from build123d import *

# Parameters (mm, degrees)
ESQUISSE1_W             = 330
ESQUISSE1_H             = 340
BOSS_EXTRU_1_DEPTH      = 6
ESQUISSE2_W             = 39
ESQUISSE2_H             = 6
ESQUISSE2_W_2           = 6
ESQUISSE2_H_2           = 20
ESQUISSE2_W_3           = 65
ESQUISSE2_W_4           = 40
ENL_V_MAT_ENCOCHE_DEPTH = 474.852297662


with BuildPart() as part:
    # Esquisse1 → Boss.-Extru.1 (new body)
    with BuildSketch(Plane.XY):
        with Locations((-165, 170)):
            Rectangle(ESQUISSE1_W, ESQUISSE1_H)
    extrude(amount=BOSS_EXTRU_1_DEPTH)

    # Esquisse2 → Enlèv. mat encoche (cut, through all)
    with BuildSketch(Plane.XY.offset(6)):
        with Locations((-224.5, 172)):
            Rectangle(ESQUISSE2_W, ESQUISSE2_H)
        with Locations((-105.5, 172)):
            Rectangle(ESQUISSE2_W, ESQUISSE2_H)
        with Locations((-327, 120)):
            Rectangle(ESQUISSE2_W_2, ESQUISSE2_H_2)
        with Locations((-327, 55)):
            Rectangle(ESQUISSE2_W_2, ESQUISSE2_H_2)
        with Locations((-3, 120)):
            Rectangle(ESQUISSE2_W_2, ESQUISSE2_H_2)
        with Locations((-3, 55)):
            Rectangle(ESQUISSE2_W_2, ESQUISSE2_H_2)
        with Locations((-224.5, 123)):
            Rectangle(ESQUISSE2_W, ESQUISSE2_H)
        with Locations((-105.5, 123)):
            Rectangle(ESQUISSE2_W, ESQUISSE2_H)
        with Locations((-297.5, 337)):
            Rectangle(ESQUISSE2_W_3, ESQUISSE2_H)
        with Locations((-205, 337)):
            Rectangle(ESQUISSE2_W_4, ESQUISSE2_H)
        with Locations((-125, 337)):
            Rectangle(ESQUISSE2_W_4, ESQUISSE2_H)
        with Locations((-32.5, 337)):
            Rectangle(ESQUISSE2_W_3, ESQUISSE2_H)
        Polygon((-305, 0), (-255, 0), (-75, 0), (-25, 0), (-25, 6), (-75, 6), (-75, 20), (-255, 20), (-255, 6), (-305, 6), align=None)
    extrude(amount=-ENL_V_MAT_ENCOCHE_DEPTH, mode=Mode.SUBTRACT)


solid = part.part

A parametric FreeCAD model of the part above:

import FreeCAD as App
import Part
import Sketcher
Q = App.Units.Quantity


def add_polygon(sketch, points):
    """Adds a closed chain of lines whose ends are joined by coincident constraints."""
    first, n = sketch.GeometryCount, len(points)
    for a, b in zip(points, points[1:] + points[:1]):
        sketch.addGeometry(Part.LineSegment(App.Vector(*a, 0), App.Vector(*b, 0)), False)
    for i in range(n):
        sketch.addConstraint(Sketcher.Constraint("Coincident", first + i, 2, first + (i + 1) % n, 1))

doc = App.newDocument("Part")
body = doc.addObject("PartDesign::Body", "Body")

sketch1 = body.newObject("Sketcher::SketchObject", "Sketch")
sketch1.AttachmentSupport = (doc.getObject("XY_Plane"), [""])
sketch1.MapMode = "FlatFace"
add_polygon(sketch1, [(-330, 340), (-330, 0), (0, 0), (0, 340)])
sketch1.addConstraint(Sketcher.Constraint("Vertical", 0))
sketch1.addConstraint(Sketcher.Constraint("Horizontal", 1))
sketch1.addConstraint(Sketcher.Constraint("Vertical", 2))
sketch1.addConstraint(Sketcher.Constraint("Horizontal", 3))
sketch1.addConstraint(Sketcher.Constraint("Coincident", 1, 2, -1, 1))
sketch1.addConstraint(Sketcher.Constraint("DistanceX", 1, 1, 1, 2, Q("330 mm")))
sketch1.addConstraint(Sketcher.Constraint("DistanceY", 0, 2, 0, 1, Q("340 mm")))
pad1 = body.newObject("PartDesign::Pad", "Pad")
pad1.Profile = sketch1
pad1.Length = 6

sketch2 = body.newObject("Sketcher::SketchObject", "Sketch001")
sketch2.AttachmentSupport = (doc.getObject("XY_Plane"), [""])
sketch2.MapMode = "FlatFace"
sketch2.AttachmentOffset = App.Placement(App.Vector(0, 0, 6), App.Rotation())
add_polygon(sketch2, [(-244, 175), (-244, 169), (-205, 169), (-205, 175)])
add_polygon(sketch2, [(-125, 175), (-125, 169), (-86, 169), (-86, 175)])
add_polygon(sketch2, [(-330, 130), (-330, 110), (-324, 110), (-324, 130)])
add_polygon(sketch2, [(-330, 65), (-330, 45), (-324, 45), (-324, 65)])
add_polygon(sketch2, [(-6, 130), (-6, 110), (0, 110), (0, 130)])
add_polygon(sketch2, [(-6, 65), (-6, 45), (0, 45), (0, 65)])
add_polygon(sketch2, [(-244, 126), (-244, 120), (-205, 120), (-205, 126)])
add_polygon(sketch2, [(-125, 126), (-125, 120), (-86, 120), (-86, 126)])
add_polygon(sketch2, [(-330, 340), (-330, 334), (-265, 334), (-265, 340)])
add_polygon(sketch2, [(-225, 340), (-225, 334), (-185, 334), (-185, 340)])
add_polygon(sketch2, [(-145, 340), (-145, 334), (-105, 334), (-105, 340)])
add_polygon(sketch2, [(-65, 340), (-65, 334), (0, 334), (0, 340)])
add_polygon(sketch2, [(-305, 0), (-25, 0), (-25, 6), (-75, 6), (-75, 20), (-255, 20), (-255, 6), (-305, 6)])
sketch2.addConstraint(Sketcher.Constraint("Vertical", 0))
sketch2.addConstraint(Sketcher.Constraint("Horizontal", 1))
sketch2.addConstraint(Sketcher.Constraint("Vertical", 2))
sketch2.addConstraint(Sketcher.Constraint("Horizontal", 3))
sketch2.addConstraint(Sketcher.Constraint("Vertical", 4))
sketch2.addConstraint(Sketcher.Constraint("Horizontal", 5))
sketch2.addConstraint(Sketcher.Constraint("Vertical", 6))
sketch2.addConstraint(Sketcher.Constraint("Horizontal", 7))
sketch2.addConstraint(Sketcher.Constraint("Vertical", 8))
sketch2.addConstraint(Sketcher.Constraint("Horizontal", 9))
sketch2.addConstraint(Sketcher.Constraint("Vertical", 10))
sketch2.addConstraint(Sketcher.Constraint("Horizontal", 11))
sketch2.addConstraint(Sketcher.Constraint("Vertical", 12))
sketch2.addConstraint(Sketcher.Constraint("Horizontal", 13))
sketch2.addConstraint(Sketcher.Constraint("Vertical", 14))
sketch2.addConstraint(Sketcher.Constraint("Horizontal", 15))
sketch2.addConstraint(Sketcher.Constraint("Vertical", 16))
sketch2.addConstraint(Sketcher.Constraint("Horizontal", 17))
sketch2.addConstraint(Sketcher.Constraint("Vertical", 18))
sketch2.addConstraint(Sketcher.Constraint("Horizontal", 19))
sketch2.addConstraint(Sketcher.Constraint("Vertical", 20))
sketch2.addConstraint(Sketcher.Constraint("Horizontal", 21))
sketch2.addConstraint(Sketcher.Constraint("Vertical", 22))
sketch2.addConstraint(Sketcher.Constraint("Horizontal", 23))
sketch2.addConstraint(Sketcher.Constraint("Vertical", 24))
sketch2.addConstraint(Sketcher.Constraint("Horizontal", 25))
sketch2.addConstraint(Sketcher.Constraint("Vertical", 26))
sketch2.addConstraint(Sketcher.Constraint("Horizontal", 27))
sketch2.addConstraint(Sketcher.Constraint("Vertical", 28))
sketch2.addConstraint(Sketcher.Constraint("Horizontal", 29))
sketch2.addConstraint(Sketcher.Constraint("Vertical", 30))
sketch2.addConstraint(Sketcher.Constraint("Horizontal", 31))
sketch2.addConstraint(Sketcher.Constraint("Vertical", 32))
sketch2.addConstraint(Sketcher.Constraint("Horizontal", 33))
sketch2.addConstraint(Sketcher.Constraint("Vertical", 34))
sketch2.addConstraint(Sketcher.Constraint("Horizontal", 35))
sketch2.addConstraint(Sketcher.Constraint("Vertical", 36))
sketch2.addConstraint(Sketcher.Constraint("Horizontal", 37))
sketch2.addConstraint(Sketcher.Constraint("Vertical", 38))
sketch2.addConstraint(Sketcher.Constraint("Horizontal", 39))
sketch2.addConstraint(Sketcher.Constraint("Vertical", 40))
sketch2.addConstraint(Sketcher.Constraint("Horizontal", 41))
sketch2.addConstraint(Sketcher.Constraint("Vertical", 42))
sketch2.addConstraint(Sketcher.Constraint("Horizontal", 43))
sketch2.addConstraint(Sketcher.Constraint("Vertical", 44))
sketch2.addConstraint(Sketcher.Constraint("Horizontal", 45))
sketch2.addConstraint(Sketcher.Constraint("Vertical", 46))
sketch2.addConstraint(Sketcher.Constraint("Horizontal", 47))
sketch2.addConstraint(Sketcher.Constraint("Horizontal", 48))
sketch2.addConstraint(Sketcher.Constraint("Vertical", 49))
sketch2.addConstraint(Sketcher.Constraint("Horizontal", 50))
sketch2.addConstraint(Sketcher.Constraint("Vertical", 51))
sketch2.addConstraint(Sketcher.Constraint("Horizontal", 52))
sketch2.addConstraint(Sketcher.Constraint("Vertical", 53))
sketch2.addConstraint(Sketcher.Constraint("Horizontal", 54))
sketch2.addConstraint(Sketcher.Constraint("Vertical", 55))
sketch2.addConstraint(Sketcher.Constraint("PointOnObject", 17, 2, -2))
sketch2.addConstraint(Sketcher.Constraint("PointOnObject", 21, 2, -2))
sketch2.addConstraint(Sketcher.Constraint("PointOnObject", 45, 2, -2))
sketch2.addConstraint(Sketcher.Constraint("PointOnObject", 48, 2, -1))
sketch2.addConstraint(Sketcher.Constraint("Horizontal", 1, 2, 4, 2))
sketch2.addConstraint(Sketcher.Constraint("Horizontal", 3, 2, 6, 2))
sketch2.addConstraint(Sketcher.Constraint("Horizontal", 9, 2, 16, 2))
sketch2.addConstraint(Sketcher.Constraint("Horizontal", 11, 2, 18, 2))
sketch2.addConstraint(Sketcher.Constraint("Horizontal", 13, 2, 20, 2))
sketch2.addConstraint(Sketcher.Constraint("Horizontal", 15, 2, 22, 2))
sketch2.addConstraint(Sketcher.Constraint("Horizontal", 25, 2, 28, 2))
sketch2.addConstraint(Sketcher.Constraint("Horizontal", 27, 2, 30, 2))
sketch2.addConstraint(Sketcher.Constraint("Horizontal", 33, 2, 36, 2))
sketch2.addConstraint(Sketcher.Constraint("Horizontal", 35, 2, 38, 2))
sketch2.addConstraint(Sketcher.Constraint("Horizontal", 37, 2, 40, 2))
sketch2.addConstraint(Sketcher.Constraint("Horizontal", 39, 2, 42, 2))
sketch2.addConstraint(Sketcher.Constraint("Horizontal", 41, 2, 44, 2))
sketch2.addConstraint(Sketcher.Constraint("Horizontal", 43, 2, 46, 2))
sketch2.addConstraint(Sketcher.Constraint("Horizontal", 50, 2, 53, 2))
sketch2.addConstraint(Sketcher.Constraint("Vertical", 11, 2, 12, 2))
sketch2.addConstraint(Sketcher.Constraint("Vertical", 10, 2, 13, 2))
sketch2.addConstraint(Sketcher.Constraint("Vertical", 19, 2, 20, 2))
sketch2.addConstraint(Sketcher.Constraint("Vertical", 3, 2, 24, 2))
sketch2.addConstraint(Sketcher.Constraint("Vertical", 2, 2, 25, 2))
sketch2.addConstraint(Sketcher.Constraint("Vertical", 7, 2, 28, 2))
sketch2.addConstraint(Sketcher.Constraint("Vertical", 6, 2, 29, 2))
sketch2.addConstraint(Sketcher.Constraint("Vertical", 15, 2, 32, 2))
sketch2.addConstraint(Sketcher.Constraint("Equal", 3, 5))
sketch2.addConstraint(Sketcher.Constraint("Equal", 15, 17))
sketch2.addConstraint(Sketcher.Constraint("Equal", 39, 41))
sketch2.addConstraint(Sketcher.Constraint("Equal", 35, 45))
sketch2.addConstraint(Sketcher.Constraint("Equal", 50, 54))
sketch2.addConstraint(Sketcher.Constraint("Equal", 23, 0))
sketch2.addConstraint(Sketcher.Constraint("Equal", 10, 12))
sketch2.addConstraint(Sketcher.Constraint("Equal", 6, 24))
sketch2.addConstraint(Sketcher.Constraint("Equal", 30, 32))
sketch2.addConstraint(Sketcher.Constraint("Equal", 46, 49))
sketch2.addConstraint(Sketcher.Constraint("DistanceX", 1, 1, 1, 2, Q("39 mm")))
sketch2.addConstraint(Sketcher.Constraint("DistanceX", 9, 1, 9, 2, Q("6 mm")))
sketch2.addConstraint(Sketcher.Constraint("DistanceX", 33, 1, 33, 2, Q("65 mm")))
sketch2.addConstraint(Sketcher.Constraint("DistanceX", 37, 1, 37, 2, Q("40 mm")))
sketch2.addConstraint(Sketcher.Constraint("DistanceX", 48, 1, 48, 2, Q("280 mm")))
sketch2.addConstraint(Sketcher.Constraint("DistanceX", 50, 2, 50, 1, Q("50 mm")))
sketch2.addConstraint(Sketcher.Constraint("DistanceY", 8, 2, 8, 1, Q("20 mm")))
sketch2.addConstraint(Sketcher.Constraint("DistanceY", 51, 1, 51, 2, Q("14 mm")))
sketch2.addConstraint(Sketcher.Constraint("DistanceX", 0, 2, -1, 1, Q("244 mm")))
sketch2.addConstraint(Sketcher.Constraint("DistanceY", -1, 1, 0, 2, Q("169 mm")))
sketch2.addConstraint(Sketcher.Constraint("DistanceX", 4, 2, -1, 1, Q("125 mm")))
sketch2.addConstraint(Sketcher.Constraint("DistanceX", 8, 2, -1, 1, Q("330 mm")))
sketch2.addConstraint(Sketcher.Constraint("DistanceY", -1, 1, 8, 2, Q("110 mm")))
sketch2.addConstraint(Sketcher.Constraint("DistanceY", -1, 1, 12, 2, Q("45 mm")))
sketch2.addConstraint(Sketcher.Constraint("DistanceY", -1, 1, 24, 2, Q("120 mm")))
sketch2.addConstraint(Sketcher.Constraint("DistanceY", -1, 1, 32, 2, Q("334 mm")))
sketch2.addConstraint(Sketcher.Constraint("DistanceX", 36, 2, -1, 1, Q("225 mm")))
sketch2.addConstraint(Sketcher.Constraint("DistanceX", 40, 2, -1, 1, Q("145 mm")))
sketch2.addConstraint(Sketcher.Constraint("DistanceX", 48, 2, -1, 1, Q("25 mm")))
pocket1 = body.newObject("PartDesign::Pocket", "Pocket")
pocket1.Profile = sketch2
pocket1.Type = "ThroughAll"

doc.recompute()
